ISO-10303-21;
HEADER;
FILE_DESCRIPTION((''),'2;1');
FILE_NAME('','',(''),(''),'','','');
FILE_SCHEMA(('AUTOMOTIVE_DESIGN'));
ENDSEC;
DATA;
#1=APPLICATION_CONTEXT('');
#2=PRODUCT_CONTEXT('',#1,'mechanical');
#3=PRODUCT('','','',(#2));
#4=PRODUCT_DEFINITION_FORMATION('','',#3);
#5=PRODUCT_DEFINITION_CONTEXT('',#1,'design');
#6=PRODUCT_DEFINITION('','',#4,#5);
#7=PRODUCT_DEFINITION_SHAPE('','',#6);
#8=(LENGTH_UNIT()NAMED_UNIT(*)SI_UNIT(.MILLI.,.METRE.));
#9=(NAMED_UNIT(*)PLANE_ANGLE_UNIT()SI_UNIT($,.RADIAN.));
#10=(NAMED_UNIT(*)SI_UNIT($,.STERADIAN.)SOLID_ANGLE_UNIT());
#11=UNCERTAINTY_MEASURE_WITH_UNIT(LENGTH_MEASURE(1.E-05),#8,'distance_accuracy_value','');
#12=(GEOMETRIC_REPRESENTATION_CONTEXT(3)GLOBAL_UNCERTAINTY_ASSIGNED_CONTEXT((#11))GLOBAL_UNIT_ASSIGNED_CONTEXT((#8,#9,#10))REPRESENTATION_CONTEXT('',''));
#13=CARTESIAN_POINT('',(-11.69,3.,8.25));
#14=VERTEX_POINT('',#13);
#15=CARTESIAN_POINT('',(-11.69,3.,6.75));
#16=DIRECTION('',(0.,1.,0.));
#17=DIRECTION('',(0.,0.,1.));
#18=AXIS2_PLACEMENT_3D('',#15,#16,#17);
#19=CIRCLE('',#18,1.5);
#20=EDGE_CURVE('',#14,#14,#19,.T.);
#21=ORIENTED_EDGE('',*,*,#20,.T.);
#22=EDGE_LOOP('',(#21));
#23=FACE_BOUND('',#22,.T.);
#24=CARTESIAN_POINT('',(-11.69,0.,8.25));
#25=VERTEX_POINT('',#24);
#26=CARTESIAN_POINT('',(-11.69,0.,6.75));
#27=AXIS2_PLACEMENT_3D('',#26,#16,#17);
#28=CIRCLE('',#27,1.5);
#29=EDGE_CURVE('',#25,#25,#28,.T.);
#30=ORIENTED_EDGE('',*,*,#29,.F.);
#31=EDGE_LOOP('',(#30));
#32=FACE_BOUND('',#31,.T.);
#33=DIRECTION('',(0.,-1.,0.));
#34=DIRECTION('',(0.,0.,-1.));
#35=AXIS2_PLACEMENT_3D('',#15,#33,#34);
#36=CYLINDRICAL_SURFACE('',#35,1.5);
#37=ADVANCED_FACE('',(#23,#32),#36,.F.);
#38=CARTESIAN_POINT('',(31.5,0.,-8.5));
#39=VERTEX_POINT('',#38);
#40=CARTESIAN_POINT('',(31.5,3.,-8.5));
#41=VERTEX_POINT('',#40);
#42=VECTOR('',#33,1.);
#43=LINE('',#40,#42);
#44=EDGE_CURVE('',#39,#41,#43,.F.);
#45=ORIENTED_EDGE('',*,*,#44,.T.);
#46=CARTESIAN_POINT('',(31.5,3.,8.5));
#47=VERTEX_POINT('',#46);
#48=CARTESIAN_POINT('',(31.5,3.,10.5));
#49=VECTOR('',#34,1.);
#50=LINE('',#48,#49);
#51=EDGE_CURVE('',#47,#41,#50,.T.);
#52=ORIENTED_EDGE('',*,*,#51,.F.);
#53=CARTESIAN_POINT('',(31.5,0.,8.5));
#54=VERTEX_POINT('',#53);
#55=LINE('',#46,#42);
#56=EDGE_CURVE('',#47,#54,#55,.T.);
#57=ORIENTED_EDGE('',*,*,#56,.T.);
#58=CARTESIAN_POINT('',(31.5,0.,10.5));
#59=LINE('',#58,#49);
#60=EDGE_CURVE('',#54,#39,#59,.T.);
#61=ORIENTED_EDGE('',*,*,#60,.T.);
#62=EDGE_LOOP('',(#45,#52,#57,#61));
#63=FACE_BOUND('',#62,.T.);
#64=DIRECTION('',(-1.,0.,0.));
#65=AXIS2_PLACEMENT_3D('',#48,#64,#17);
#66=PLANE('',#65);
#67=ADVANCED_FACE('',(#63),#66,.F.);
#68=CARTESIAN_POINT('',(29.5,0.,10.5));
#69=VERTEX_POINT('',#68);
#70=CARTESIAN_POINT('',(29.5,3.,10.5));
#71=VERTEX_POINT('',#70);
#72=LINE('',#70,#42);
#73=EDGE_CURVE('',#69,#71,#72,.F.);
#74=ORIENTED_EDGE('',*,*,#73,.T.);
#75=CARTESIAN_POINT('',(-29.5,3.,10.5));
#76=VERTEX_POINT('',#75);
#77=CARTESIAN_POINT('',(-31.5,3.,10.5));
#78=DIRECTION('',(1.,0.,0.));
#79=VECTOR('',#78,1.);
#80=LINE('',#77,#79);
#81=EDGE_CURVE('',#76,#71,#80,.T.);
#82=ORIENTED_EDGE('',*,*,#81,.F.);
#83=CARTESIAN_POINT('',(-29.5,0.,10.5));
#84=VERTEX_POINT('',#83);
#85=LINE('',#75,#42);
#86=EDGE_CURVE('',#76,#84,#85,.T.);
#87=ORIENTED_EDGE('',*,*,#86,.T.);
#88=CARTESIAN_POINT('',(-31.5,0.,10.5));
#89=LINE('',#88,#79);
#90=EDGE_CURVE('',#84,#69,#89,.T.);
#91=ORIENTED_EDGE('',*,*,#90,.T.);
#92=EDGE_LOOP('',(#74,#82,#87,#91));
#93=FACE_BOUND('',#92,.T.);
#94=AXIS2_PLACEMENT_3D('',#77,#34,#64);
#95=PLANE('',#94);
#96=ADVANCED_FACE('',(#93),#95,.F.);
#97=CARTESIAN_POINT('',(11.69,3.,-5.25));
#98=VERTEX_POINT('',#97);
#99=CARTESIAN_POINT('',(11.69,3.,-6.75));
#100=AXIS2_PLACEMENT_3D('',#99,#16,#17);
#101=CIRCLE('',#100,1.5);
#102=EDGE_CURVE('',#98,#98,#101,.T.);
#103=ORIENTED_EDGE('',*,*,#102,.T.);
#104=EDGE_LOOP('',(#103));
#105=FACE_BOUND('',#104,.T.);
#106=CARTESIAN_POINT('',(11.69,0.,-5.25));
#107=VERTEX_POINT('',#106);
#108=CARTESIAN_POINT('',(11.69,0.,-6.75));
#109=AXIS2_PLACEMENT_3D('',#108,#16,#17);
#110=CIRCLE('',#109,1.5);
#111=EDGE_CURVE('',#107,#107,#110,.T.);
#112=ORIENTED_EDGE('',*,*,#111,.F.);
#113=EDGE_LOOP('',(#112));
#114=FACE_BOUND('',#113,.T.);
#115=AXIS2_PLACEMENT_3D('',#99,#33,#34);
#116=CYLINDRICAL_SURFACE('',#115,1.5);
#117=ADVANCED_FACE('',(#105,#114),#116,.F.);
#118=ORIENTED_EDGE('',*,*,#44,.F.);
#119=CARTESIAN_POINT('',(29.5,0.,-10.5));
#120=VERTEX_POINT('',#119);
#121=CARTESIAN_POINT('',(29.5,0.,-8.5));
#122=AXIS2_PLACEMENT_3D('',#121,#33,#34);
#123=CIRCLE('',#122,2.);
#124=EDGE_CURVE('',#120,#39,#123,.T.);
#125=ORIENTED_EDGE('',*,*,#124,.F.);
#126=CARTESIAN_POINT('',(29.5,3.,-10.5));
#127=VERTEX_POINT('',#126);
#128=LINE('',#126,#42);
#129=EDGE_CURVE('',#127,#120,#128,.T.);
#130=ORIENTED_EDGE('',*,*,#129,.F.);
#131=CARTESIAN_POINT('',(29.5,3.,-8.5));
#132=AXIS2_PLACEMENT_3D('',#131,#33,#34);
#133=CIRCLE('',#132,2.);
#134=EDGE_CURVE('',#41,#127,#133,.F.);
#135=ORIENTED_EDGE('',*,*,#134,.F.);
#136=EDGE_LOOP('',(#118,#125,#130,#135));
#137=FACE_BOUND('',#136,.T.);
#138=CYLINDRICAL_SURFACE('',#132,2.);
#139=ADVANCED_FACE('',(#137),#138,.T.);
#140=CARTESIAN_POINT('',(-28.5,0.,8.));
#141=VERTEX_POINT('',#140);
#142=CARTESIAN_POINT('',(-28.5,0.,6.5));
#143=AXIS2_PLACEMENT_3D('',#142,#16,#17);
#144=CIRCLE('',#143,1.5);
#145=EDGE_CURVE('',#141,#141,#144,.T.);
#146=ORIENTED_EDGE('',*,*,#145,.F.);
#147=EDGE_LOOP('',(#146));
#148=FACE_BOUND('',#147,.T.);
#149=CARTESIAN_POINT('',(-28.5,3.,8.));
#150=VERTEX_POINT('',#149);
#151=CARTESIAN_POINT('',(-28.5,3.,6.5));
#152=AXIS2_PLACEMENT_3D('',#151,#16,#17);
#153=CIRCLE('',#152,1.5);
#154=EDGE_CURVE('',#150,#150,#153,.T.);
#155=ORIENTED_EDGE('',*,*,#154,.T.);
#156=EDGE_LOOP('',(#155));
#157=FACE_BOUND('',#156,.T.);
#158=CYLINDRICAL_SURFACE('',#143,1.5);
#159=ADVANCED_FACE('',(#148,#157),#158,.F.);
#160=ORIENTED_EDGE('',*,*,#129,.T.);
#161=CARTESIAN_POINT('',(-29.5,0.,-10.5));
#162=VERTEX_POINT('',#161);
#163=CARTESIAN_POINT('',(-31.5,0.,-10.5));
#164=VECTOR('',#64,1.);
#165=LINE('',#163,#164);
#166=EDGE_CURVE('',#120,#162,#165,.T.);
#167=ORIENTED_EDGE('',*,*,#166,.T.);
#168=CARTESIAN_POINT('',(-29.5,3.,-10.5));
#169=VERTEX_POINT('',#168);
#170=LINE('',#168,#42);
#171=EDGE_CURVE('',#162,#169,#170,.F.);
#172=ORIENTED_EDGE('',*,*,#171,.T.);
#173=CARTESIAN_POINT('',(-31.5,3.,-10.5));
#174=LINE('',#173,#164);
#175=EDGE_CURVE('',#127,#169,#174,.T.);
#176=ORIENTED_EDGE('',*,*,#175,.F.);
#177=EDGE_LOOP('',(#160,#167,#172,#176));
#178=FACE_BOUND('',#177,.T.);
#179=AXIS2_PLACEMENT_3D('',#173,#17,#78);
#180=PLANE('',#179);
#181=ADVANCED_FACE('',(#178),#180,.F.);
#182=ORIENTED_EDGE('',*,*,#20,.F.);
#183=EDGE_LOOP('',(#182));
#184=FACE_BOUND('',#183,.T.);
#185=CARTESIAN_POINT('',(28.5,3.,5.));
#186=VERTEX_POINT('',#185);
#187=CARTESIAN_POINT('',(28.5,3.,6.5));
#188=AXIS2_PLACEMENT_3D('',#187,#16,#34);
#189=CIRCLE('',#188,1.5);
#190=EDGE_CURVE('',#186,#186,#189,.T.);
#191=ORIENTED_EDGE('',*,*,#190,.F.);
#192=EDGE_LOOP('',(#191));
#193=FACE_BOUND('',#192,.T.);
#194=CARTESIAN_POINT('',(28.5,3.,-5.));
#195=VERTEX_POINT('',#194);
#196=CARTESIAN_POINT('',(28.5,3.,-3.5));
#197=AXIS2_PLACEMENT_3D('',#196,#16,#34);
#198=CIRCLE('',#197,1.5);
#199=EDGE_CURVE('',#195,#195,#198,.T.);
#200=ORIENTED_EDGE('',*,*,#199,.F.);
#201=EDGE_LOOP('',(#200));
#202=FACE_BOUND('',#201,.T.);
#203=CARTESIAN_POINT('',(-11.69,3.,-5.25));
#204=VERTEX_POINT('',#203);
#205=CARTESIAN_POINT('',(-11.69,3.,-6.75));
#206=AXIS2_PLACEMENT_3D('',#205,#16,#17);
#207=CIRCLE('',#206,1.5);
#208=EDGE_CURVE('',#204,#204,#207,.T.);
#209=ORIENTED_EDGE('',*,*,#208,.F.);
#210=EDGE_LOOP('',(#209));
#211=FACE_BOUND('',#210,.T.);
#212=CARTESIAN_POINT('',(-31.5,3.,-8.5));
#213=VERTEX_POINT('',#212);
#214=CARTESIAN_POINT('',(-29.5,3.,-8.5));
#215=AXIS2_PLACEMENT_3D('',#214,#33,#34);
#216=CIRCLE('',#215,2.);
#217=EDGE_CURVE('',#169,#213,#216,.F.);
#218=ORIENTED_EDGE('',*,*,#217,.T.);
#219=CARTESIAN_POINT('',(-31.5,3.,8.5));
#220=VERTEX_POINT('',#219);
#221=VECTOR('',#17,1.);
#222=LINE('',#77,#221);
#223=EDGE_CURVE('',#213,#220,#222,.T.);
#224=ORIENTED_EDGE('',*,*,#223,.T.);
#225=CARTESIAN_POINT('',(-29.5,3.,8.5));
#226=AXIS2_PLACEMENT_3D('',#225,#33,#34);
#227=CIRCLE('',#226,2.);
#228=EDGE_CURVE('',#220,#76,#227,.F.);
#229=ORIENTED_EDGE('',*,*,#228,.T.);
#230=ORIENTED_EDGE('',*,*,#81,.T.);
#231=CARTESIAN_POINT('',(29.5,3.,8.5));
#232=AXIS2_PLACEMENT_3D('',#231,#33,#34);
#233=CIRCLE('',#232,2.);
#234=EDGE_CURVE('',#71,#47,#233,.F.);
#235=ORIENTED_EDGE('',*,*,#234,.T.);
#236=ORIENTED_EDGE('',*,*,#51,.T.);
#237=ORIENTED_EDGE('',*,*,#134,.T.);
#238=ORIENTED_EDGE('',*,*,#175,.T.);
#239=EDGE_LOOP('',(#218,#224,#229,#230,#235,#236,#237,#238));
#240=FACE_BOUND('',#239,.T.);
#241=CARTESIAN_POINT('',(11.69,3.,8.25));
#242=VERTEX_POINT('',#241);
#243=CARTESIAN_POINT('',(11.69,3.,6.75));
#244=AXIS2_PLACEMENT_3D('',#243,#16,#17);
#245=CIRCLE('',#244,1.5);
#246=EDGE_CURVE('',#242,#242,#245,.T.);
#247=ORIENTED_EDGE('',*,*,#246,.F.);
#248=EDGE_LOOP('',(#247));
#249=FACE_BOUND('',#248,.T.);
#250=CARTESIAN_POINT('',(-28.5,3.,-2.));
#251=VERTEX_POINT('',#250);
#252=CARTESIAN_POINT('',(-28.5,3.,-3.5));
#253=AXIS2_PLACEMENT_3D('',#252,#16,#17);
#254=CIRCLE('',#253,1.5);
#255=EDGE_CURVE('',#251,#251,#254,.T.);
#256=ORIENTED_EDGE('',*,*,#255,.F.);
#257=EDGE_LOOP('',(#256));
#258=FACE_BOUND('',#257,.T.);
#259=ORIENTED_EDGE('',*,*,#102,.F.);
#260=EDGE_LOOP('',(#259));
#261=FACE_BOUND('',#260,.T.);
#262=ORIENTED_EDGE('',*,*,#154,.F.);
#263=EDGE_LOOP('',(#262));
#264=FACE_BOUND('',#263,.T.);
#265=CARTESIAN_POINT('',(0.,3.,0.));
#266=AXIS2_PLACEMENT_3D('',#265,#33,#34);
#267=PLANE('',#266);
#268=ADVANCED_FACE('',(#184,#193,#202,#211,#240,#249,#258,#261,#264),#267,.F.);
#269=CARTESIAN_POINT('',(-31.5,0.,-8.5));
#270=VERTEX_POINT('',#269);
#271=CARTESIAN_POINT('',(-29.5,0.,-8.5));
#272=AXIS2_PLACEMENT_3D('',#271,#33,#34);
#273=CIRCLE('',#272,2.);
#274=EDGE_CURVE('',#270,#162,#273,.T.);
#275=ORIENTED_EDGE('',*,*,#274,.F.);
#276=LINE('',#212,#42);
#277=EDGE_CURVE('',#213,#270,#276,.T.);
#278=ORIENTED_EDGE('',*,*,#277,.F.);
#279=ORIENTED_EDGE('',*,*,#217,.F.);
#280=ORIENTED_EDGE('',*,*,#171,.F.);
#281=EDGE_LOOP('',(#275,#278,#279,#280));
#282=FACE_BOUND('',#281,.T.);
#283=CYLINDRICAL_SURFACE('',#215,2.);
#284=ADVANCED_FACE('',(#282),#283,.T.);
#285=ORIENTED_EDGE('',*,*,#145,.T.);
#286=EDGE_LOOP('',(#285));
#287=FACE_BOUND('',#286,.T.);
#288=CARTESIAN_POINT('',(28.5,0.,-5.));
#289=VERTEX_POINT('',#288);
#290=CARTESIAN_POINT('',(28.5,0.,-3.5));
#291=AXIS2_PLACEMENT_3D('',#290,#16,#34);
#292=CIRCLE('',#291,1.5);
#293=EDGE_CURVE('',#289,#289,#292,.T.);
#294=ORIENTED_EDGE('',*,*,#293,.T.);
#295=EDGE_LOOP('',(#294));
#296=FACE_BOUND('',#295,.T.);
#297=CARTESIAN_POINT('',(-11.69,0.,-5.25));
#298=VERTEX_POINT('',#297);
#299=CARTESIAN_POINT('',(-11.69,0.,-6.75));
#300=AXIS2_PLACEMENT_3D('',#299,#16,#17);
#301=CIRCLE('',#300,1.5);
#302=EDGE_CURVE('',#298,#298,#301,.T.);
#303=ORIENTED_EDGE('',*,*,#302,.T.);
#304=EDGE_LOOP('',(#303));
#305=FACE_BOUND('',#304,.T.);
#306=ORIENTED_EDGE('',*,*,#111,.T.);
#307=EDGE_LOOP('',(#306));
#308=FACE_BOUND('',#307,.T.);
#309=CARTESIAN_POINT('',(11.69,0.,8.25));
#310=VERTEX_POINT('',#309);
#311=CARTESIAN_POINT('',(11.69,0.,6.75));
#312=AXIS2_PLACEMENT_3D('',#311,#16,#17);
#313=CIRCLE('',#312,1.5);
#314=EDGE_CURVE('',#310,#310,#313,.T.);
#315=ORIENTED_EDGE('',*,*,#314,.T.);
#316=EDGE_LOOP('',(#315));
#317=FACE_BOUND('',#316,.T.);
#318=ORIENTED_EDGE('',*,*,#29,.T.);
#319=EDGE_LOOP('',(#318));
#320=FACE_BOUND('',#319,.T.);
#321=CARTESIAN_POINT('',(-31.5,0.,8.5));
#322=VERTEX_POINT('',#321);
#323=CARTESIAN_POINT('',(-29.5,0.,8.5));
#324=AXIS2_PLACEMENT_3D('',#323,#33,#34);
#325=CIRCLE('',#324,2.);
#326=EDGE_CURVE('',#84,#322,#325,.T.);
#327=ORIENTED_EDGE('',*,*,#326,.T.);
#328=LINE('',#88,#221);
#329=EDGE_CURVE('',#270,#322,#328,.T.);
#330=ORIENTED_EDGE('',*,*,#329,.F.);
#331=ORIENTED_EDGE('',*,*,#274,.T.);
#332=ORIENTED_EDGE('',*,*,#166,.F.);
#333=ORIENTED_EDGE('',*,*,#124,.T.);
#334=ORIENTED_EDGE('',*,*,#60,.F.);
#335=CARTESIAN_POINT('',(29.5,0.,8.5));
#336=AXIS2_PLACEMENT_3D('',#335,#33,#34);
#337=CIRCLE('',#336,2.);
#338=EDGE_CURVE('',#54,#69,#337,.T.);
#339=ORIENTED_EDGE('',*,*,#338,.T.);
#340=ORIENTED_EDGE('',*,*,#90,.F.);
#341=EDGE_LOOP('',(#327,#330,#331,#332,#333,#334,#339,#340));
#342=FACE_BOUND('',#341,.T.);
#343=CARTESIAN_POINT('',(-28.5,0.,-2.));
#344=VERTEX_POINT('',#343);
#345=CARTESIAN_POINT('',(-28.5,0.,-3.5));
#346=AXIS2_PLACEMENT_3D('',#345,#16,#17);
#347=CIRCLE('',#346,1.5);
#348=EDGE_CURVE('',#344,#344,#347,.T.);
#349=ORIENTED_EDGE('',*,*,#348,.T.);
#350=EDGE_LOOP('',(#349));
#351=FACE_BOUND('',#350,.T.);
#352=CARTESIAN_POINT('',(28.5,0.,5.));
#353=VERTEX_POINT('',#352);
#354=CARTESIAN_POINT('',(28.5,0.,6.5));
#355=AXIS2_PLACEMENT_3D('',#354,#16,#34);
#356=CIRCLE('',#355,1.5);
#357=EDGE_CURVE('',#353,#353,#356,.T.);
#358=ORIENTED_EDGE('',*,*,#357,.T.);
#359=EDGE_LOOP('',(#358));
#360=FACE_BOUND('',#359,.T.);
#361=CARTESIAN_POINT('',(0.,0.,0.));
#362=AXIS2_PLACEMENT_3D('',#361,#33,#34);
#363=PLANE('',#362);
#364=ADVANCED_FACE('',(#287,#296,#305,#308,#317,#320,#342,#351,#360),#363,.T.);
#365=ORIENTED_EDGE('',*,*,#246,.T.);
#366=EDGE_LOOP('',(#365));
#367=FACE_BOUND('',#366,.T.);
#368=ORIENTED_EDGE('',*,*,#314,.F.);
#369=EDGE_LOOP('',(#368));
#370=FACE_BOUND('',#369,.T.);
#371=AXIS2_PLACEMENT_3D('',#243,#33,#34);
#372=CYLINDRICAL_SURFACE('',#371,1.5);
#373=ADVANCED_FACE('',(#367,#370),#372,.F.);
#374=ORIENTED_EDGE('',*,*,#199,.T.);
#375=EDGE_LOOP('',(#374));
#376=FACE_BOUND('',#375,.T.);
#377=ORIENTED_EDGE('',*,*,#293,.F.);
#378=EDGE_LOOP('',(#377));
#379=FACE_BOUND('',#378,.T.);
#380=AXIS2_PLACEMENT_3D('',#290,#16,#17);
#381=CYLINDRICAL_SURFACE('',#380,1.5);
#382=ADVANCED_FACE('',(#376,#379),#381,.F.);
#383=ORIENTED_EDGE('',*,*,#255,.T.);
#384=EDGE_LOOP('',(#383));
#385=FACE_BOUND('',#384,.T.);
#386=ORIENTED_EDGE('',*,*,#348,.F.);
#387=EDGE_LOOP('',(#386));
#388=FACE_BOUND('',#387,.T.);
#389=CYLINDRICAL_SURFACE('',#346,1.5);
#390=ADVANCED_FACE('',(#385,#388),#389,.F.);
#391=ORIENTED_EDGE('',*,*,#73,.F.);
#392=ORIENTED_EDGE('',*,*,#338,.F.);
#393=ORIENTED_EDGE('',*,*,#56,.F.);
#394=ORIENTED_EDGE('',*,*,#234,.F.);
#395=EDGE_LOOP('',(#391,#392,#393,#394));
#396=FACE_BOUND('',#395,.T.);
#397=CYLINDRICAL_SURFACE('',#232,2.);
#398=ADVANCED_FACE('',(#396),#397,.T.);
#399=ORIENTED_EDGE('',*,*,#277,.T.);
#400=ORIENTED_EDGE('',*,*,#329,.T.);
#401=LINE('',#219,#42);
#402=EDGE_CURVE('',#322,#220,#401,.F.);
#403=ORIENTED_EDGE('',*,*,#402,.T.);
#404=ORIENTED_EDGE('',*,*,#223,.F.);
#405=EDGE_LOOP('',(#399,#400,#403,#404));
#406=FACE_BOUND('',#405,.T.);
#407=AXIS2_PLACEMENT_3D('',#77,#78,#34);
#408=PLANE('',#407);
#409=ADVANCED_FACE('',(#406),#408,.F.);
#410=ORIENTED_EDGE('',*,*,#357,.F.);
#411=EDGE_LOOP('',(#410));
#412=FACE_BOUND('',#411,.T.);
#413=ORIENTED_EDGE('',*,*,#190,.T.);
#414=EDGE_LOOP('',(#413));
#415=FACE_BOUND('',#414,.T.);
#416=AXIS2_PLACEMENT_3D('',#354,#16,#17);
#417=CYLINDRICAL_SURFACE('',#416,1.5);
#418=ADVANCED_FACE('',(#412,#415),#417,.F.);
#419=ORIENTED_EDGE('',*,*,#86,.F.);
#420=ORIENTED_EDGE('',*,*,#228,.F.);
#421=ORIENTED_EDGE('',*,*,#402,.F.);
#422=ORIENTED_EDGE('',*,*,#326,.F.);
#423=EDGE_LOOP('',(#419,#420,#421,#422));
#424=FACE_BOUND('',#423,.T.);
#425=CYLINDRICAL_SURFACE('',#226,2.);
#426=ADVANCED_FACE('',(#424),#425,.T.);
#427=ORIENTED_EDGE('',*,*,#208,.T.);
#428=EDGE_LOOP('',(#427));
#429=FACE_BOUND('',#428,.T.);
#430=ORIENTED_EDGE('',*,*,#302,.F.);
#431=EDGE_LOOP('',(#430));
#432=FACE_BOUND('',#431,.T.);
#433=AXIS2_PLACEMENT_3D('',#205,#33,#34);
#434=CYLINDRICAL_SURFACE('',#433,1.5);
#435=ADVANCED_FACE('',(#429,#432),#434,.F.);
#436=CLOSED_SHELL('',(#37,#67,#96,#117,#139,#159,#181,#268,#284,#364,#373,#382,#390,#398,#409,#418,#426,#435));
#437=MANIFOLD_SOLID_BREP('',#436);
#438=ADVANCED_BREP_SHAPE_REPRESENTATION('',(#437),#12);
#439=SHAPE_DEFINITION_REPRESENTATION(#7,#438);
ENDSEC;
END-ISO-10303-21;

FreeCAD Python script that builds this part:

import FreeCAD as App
import Part
import Sketcher

V = App.Vector
Q = App.Units.Quantity


def edges_at(feature, points):
    """Names of the edges that pass closest to the given points."""
    edges = feature.Shape.Edges
    near = lambda p: min(range(len(edges)), key=lambda i: edges[i].distToShape(Part.Vertex(*p))[0])
    return sorted({f"Edge{near(p) + 1}" for p in points})


def add_polygon(sketch, points):
    """Adds a closed chain of lines whose ends are joined by coincident constraints."""
    first, n = sketch.GeometryCount, len(points)
    for a, b in zip(points, points[1:] + points[:1]):
        sketch.addGeometry(Part.LineSegment(App.Vector(*a, 0), App.Vector(*b, 0)), False)
    for i in range(n):
        sketch.addConstraint(Sketcher.Constraint("Coincident", first + i, 2, first + (i + 1) % n, 1))

doc = App.newDocument("Part")
body = doc.addObject("PartDesign::Body", "Body")

# Sketch on XZ plane
sketch1 = doc.addObject("Sketcher::SketchObject", "Sketch")
body.addObject(sketch1)
sketch1.AttachmentSupport = (doc.XZ_Plane, [""])
sketch1.MapMode = "FlatFace"
add_polygon(sketch1, [(-31.5, -10.5), (-31.5, 10.5), (31.5, 10.5), (31.5, -10.5)])  # lines 0-3
sketch1.addGeometry(Part.Circle(V(-11.7, 6.8, 0), V(0, 0, 1), 1.5), False)  # 4
sketch1.addGeometry(Part.Circle(V(11.7, 6.8, 0), V(0, 0, 1), 1.5), False)  # 5
sketch1.addGeometry(Part.Circle(V(-11.7, -6.8, 0), V(0, 0, 1), 1.5), False)  # 6
sketch1.addGeometry(Part.Circle(V(11.7, -6.8, 0), V(0, 0, 1), 1.5), False)  # 7
sketch1.addConstraint([
    Sketcher.Constraint("Vertical", 0),
    Sketcher.Constraint("Horizontal", 1),
    Sketcher.Constraint("Vertical", 2),
    Sketcher.Constraint("Horizontal", 3),
    Sketcher.Constraint("Equal", 4, 5),
    Sketcher.Constraint("Equal", 5, 6),
    Sketcher.Constraint("Equal", 6, 7),
    Sketcher.Constraint("Symmetric", 5, 3, 6, 3, -1, 1),
    Sketcher.Constraint("Symmetric", 4, 3, 7, 3, -1, 1),
    Sketcher.Constraint("Symmetric", 0, 2, 2, 2, -1, 1),
    Sketcher.Constraint("Symmetric", 4, 3, 5, 3, -2),
    Sketcher.Constraint("Diameter", 4, Q("3 mm")),
    Sketcher.Constraint("DistanceX", 1, 1, 1, 2, Q("63 mm")),
    Sketcher.Constraint("DistanceY", 0, 1, 0, 2, Q("21 mm")),
    Sketcher.Constraint("DistanceY", 6, 3, 4, 3, Q("13.5 mm")),
    Sketcher.Constraint("DistanceX", 4, 3, -1, 1, Q("11.69 mm")),
])
pad1 = doc.addObject("PartDesign::Pad", "Pad")
body.addObject(pad1)
pad1.Profile = sketch1
pad1.Length = 3
pad1.Reversed = True
doc.recompute()

fillet = doc.addObject("PartDesign::Fillet", "Fillet")
body.addObject(fillet)
fillet.Base = (pad1, edges_at(pad1, [
    (31.5, 1.5, 10.5),
    (-31.5, 1.5, 10.5),
    (-31.5, 1.5, -10.5),
    (31.5, 1.5, -10.5),
]))
fillet.Radius = 2

# Sketch on XZ plane
sketch2 = doc.addObject("Sketcher::SketchObject", "Sketch001")
body.addObject(sketch2)
sketch2.AttachmentSupport = (doc.XZ_Plane, [""])
sketch2.MapMode = "FlatFace"
sketch2.AttachmentOffset = App.Placement(V(0, 0, -3), App.Rotation())
sketch2.addGeometry([
    Part.Circle(V(-28.5, 6.5, 0), V(0, 0, 1), 1.5),
    Part.Circle(V(-28.5, -3.5, 0), V(0, 0, 1), 1.5),
    Part.Circle(V(28.5, 6.5, 0), V(0, 0, 1), 1.5),
    Part.Circle(V(28.5, -3.5, 0), V(0, 0, 1), 1.5),
], False)
sketch2.addConstraint([
    Sketcher.Constraint("Equal", 0, 1),
    Sketcher.Constraint("Equal", 1, 2),
    Sketcher.Constraint("Equal", 2, 3),
    Sketcher.Constraint("Symmetric", 0, 3, 2, 3, -2),
    Sketcher.Constraint("Symmetric", 1, 3, 3, 3, -2),
    Sketcher.Constraint("Vertical", 0, 3, 1, 3),
    Sketcher.Constraint("Diameter", 0, Q("3 mm")),
    Sketcher.Constraint("DistanceY", 1, 3, 0, 3, Q("10 mm")),
    Sketcher.Constraint("DistanceX", 0, 3, 2, 3, Q("57 mm")),
    Sketcher.Constraint("DistanceY", -1, 1, 0, 3, Q("6.5 mm")),
])
pocket1 = doc.addObject("PartDesign::Pocket", "Pocket")
body.addObject(pocket1)
pocket1.Profile = sketch2
pocket1.Type = "ThroughAll"
pocket1.Reversed = True

doc.recompute()
